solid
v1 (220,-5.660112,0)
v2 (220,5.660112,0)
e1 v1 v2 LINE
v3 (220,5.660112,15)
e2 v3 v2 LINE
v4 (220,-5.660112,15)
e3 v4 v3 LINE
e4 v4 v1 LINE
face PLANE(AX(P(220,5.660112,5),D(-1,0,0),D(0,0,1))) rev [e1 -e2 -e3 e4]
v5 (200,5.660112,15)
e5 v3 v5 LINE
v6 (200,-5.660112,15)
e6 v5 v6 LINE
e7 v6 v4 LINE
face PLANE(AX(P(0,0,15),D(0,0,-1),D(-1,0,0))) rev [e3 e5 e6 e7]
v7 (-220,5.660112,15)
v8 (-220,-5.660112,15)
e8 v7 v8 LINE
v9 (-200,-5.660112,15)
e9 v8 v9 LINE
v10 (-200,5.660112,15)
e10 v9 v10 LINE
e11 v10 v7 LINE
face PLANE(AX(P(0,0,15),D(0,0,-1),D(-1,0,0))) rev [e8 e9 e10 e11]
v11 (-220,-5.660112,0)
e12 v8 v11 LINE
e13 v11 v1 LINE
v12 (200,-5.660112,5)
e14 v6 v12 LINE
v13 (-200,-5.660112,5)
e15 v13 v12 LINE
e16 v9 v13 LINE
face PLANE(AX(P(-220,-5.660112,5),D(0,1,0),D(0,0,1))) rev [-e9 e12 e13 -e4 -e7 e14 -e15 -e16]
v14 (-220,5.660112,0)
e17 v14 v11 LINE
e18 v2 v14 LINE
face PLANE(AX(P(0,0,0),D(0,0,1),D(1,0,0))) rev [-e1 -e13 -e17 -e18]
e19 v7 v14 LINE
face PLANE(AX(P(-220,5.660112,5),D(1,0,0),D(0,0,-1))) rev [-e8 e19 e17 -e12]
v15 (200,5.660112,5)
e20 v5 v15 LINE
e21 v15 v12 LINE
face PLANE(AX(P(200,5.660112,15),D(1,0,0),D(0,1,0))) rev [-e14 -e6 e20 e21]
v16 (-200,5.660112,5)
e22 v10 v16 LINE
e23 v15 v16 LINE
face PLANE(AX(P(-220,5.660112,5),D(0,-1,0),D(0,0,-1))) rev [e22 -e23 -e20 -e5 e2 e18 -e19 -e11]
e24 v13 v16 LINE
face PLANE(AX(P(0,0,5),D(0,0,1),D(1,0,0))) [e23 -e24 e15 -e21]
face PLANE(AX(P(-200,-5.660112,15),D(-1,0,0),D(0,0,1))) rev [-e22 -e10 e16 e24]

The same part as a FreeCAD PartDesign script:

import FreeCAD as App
import Part
import Sketcher
from FreeCAD import Vector
Q = App.Units.Quantity

doc = App.newDocument("Part")
body = doc.addObject("PartDesign::Body", "Body")

# Sketch on XY plane
sketch1 = doc.addObject("Sketcher::SketchObject", "Sketch")
body.addObject(sketch1)
sketch1.AttachmentSupport = (doc.XY_Plane, [""])
sketch1.MapMode = "FlatFace"
sketch1.addGeometry(Part.LineSegment(Vector(-220, 6, 0), Vector(-220, -6, 0)), False)
sketch1.addGeometry(Part.LineSegment(Vector(-220, -6, 0), Vector(220, -6, 0)), False)
sketch1.addGeometry(Part.LineSegment(Vector(220, -6, 0), Vector(220, 6, 0)), False)
sketch1.addGeometry(Part.LineSegment(Vector(220, 6, 0), Vector(-220, 6, 0)), False)
sketch1.addConstraint(Sketcher.Constraint("Coincident", 0, 2, 1, 1))
sketch1.addConstraint(Sketcher.Constraint("Coincident", 1, 2, 2, 1))
sketch1.addConstraint(Sketcher.Constraint("Coincident", 2, 2, 3, 1))
sketch1.addConstraint(Sketcher.Constraint("Coincident", 3, 2, 0, 1))
sketch1.addConstraint(Sketcher.Constraint("Vertical", 0))
sketch1.addConstraint(Sketcher.Constraint("Horizontal", 1))
sketch1.addConstraint(Sketcher.Constraint("Vertical", 2))
sketch1.addConstraint(Sketcher.Constraint("Horizontal", 3))
sketch1.addConstraint(Sketcher.Constraint("Symmetric", 0, 2, 2, 2, -1, 1))
sketch1.addConstraint(Sketcher.Constraint("DistanceX", 1, 1, 1, 2, Q("440 mm")))
sketch1.addConstraint(Sketcher.Constraint("DistanceY", 0, 2, 0, 1, Q("11.320224 mm")))
pad1 = doc.addObject("PartDesign::Pad", "Pad")
body.addObject(pad1)
pad1.Profile = sketch1
pad1.Length = 5

# Sketch on XY plane
sketch2 = doc.addObject("Sketcher::SketchObject", "Sketch001")
body.addObject(sketch2)
sketch2.AttachmentSupport = (doc.XY_Plane, [""])
sketch2.MapMode = "FlatFace"
sketch2.AttachmentOffset = App.Placement(Vector(0, 0, 5), App.Rotation())
sketch2.addGeometry(Part.LineSegment(Vector(-220, 6, 0), Vector(-220, -6, 0)), False)
sketch2.addGeometry(Part.LineSegment(Vector(-220, -6, 0), Vector(-200, -6, 0)), False)
sketch2.addGeometry(Part.LineSegment(Vector(-200, -6, 0), Vector(-200, 6, 0)), False)
sketch2.addGeometry(Part.LineSegment(Vector(-200, 6, 0), Vector(-220, 6, 0)), False)
sketch2.addGeometry(Part.LineSegment(Vector(200, 6, 0), Vector(200, -6, 0)), False)
sketch2.addGeometry(Part.LineSegment(Vector(200, -6, 0), Vector(220, -6, 0)), False)
sketch2.addGeometry(Part.LineSegment(Vector(220, -6, 0), Vector(220, 6, 0)), False)
sketch2.addGeometry(Part.LineSegment(Vector(220, 6, 0), Vector(200, 6, 0)), False)
sketch2.addConstraint(Sketcher.Constraint("Coincident", 0, 2, 1, 1))
sketch2.addConstraint(Sketcher.Constraint("Coincident", 1, 2, 2, 1))
sketch2.addConstraint(Sketcher.Constraint("Coincident", 2, 2, 3, 1))
sketch2.addConstraint(Sketcher.Constraint("Coincident", 3, 2, 0, 1))
sketch2.addConstraint(Sketcher.Constraint("Coincident", 4, 2, 5, 1))
sketch2.addConstraint(Sketcher.Constraint("Coincident", 5, 2, 6, 1))
sketch2.addConstraint(Sketcher.Constraint("Coincident", 6, 2, 7, 1))
sketch2.addConstraint(Sketcher.Constraint("Coincident", 7, 2, 4, 1))
sketch2.addConstraint(Sketcher.Constraint("Vertical", 0))
sketch2.addConstraint(Sketcher.Constraint("Horizontal", 1))
sketch2.addConstraint(Sketcher.Constraint("Vertical", 2))
sketch2.addConstraint(Sketcher.Constraint("Horizontal", 3))
sketch2.addConstraint(Sketcher.Constraint("Vertical", 4))
sketch2.addConstraint(Sketcher.Constraint("Horizontal", 5))
sketch2.addConstraint(Sketcher.Constraint("Vertical", 6))
sketch2.addConstraint(Sketcher.Constraint("Horizontal", 7))
sketch2.addConstraint(Sketcher.Constraint("Symmetric", 2, 2, 4, 2, -1, 1))
sketch2.addConstraint(Sketcher.Constraint("Symmetric", 0, 2, 6, 2, -1, 1))
sketch2.addConstraint(Sketcher.Constraint("Horizontal", 1, 2, 4, 2))
sketch2.addConstraint(Sketcher.Constraint("DistanceX", 1, 1, 1, 2, Q("20 mm")))
sketch2.addConstraint(Sketcher.Constraint("DistanceX", 0, 2, -1, 1, Q("220 mm")))
sketch2.addConstraint(Sketcher.Constraint("DistanceY", 0, 2, 0, 1, Q("11.320224 mm")))
pad2 = doc.addObject("PartDesign::Pad", "Pad001")
body.addObject(pad2)
pad2.Profile = sketch2
pad2.Length = 10

doc.recompute()
